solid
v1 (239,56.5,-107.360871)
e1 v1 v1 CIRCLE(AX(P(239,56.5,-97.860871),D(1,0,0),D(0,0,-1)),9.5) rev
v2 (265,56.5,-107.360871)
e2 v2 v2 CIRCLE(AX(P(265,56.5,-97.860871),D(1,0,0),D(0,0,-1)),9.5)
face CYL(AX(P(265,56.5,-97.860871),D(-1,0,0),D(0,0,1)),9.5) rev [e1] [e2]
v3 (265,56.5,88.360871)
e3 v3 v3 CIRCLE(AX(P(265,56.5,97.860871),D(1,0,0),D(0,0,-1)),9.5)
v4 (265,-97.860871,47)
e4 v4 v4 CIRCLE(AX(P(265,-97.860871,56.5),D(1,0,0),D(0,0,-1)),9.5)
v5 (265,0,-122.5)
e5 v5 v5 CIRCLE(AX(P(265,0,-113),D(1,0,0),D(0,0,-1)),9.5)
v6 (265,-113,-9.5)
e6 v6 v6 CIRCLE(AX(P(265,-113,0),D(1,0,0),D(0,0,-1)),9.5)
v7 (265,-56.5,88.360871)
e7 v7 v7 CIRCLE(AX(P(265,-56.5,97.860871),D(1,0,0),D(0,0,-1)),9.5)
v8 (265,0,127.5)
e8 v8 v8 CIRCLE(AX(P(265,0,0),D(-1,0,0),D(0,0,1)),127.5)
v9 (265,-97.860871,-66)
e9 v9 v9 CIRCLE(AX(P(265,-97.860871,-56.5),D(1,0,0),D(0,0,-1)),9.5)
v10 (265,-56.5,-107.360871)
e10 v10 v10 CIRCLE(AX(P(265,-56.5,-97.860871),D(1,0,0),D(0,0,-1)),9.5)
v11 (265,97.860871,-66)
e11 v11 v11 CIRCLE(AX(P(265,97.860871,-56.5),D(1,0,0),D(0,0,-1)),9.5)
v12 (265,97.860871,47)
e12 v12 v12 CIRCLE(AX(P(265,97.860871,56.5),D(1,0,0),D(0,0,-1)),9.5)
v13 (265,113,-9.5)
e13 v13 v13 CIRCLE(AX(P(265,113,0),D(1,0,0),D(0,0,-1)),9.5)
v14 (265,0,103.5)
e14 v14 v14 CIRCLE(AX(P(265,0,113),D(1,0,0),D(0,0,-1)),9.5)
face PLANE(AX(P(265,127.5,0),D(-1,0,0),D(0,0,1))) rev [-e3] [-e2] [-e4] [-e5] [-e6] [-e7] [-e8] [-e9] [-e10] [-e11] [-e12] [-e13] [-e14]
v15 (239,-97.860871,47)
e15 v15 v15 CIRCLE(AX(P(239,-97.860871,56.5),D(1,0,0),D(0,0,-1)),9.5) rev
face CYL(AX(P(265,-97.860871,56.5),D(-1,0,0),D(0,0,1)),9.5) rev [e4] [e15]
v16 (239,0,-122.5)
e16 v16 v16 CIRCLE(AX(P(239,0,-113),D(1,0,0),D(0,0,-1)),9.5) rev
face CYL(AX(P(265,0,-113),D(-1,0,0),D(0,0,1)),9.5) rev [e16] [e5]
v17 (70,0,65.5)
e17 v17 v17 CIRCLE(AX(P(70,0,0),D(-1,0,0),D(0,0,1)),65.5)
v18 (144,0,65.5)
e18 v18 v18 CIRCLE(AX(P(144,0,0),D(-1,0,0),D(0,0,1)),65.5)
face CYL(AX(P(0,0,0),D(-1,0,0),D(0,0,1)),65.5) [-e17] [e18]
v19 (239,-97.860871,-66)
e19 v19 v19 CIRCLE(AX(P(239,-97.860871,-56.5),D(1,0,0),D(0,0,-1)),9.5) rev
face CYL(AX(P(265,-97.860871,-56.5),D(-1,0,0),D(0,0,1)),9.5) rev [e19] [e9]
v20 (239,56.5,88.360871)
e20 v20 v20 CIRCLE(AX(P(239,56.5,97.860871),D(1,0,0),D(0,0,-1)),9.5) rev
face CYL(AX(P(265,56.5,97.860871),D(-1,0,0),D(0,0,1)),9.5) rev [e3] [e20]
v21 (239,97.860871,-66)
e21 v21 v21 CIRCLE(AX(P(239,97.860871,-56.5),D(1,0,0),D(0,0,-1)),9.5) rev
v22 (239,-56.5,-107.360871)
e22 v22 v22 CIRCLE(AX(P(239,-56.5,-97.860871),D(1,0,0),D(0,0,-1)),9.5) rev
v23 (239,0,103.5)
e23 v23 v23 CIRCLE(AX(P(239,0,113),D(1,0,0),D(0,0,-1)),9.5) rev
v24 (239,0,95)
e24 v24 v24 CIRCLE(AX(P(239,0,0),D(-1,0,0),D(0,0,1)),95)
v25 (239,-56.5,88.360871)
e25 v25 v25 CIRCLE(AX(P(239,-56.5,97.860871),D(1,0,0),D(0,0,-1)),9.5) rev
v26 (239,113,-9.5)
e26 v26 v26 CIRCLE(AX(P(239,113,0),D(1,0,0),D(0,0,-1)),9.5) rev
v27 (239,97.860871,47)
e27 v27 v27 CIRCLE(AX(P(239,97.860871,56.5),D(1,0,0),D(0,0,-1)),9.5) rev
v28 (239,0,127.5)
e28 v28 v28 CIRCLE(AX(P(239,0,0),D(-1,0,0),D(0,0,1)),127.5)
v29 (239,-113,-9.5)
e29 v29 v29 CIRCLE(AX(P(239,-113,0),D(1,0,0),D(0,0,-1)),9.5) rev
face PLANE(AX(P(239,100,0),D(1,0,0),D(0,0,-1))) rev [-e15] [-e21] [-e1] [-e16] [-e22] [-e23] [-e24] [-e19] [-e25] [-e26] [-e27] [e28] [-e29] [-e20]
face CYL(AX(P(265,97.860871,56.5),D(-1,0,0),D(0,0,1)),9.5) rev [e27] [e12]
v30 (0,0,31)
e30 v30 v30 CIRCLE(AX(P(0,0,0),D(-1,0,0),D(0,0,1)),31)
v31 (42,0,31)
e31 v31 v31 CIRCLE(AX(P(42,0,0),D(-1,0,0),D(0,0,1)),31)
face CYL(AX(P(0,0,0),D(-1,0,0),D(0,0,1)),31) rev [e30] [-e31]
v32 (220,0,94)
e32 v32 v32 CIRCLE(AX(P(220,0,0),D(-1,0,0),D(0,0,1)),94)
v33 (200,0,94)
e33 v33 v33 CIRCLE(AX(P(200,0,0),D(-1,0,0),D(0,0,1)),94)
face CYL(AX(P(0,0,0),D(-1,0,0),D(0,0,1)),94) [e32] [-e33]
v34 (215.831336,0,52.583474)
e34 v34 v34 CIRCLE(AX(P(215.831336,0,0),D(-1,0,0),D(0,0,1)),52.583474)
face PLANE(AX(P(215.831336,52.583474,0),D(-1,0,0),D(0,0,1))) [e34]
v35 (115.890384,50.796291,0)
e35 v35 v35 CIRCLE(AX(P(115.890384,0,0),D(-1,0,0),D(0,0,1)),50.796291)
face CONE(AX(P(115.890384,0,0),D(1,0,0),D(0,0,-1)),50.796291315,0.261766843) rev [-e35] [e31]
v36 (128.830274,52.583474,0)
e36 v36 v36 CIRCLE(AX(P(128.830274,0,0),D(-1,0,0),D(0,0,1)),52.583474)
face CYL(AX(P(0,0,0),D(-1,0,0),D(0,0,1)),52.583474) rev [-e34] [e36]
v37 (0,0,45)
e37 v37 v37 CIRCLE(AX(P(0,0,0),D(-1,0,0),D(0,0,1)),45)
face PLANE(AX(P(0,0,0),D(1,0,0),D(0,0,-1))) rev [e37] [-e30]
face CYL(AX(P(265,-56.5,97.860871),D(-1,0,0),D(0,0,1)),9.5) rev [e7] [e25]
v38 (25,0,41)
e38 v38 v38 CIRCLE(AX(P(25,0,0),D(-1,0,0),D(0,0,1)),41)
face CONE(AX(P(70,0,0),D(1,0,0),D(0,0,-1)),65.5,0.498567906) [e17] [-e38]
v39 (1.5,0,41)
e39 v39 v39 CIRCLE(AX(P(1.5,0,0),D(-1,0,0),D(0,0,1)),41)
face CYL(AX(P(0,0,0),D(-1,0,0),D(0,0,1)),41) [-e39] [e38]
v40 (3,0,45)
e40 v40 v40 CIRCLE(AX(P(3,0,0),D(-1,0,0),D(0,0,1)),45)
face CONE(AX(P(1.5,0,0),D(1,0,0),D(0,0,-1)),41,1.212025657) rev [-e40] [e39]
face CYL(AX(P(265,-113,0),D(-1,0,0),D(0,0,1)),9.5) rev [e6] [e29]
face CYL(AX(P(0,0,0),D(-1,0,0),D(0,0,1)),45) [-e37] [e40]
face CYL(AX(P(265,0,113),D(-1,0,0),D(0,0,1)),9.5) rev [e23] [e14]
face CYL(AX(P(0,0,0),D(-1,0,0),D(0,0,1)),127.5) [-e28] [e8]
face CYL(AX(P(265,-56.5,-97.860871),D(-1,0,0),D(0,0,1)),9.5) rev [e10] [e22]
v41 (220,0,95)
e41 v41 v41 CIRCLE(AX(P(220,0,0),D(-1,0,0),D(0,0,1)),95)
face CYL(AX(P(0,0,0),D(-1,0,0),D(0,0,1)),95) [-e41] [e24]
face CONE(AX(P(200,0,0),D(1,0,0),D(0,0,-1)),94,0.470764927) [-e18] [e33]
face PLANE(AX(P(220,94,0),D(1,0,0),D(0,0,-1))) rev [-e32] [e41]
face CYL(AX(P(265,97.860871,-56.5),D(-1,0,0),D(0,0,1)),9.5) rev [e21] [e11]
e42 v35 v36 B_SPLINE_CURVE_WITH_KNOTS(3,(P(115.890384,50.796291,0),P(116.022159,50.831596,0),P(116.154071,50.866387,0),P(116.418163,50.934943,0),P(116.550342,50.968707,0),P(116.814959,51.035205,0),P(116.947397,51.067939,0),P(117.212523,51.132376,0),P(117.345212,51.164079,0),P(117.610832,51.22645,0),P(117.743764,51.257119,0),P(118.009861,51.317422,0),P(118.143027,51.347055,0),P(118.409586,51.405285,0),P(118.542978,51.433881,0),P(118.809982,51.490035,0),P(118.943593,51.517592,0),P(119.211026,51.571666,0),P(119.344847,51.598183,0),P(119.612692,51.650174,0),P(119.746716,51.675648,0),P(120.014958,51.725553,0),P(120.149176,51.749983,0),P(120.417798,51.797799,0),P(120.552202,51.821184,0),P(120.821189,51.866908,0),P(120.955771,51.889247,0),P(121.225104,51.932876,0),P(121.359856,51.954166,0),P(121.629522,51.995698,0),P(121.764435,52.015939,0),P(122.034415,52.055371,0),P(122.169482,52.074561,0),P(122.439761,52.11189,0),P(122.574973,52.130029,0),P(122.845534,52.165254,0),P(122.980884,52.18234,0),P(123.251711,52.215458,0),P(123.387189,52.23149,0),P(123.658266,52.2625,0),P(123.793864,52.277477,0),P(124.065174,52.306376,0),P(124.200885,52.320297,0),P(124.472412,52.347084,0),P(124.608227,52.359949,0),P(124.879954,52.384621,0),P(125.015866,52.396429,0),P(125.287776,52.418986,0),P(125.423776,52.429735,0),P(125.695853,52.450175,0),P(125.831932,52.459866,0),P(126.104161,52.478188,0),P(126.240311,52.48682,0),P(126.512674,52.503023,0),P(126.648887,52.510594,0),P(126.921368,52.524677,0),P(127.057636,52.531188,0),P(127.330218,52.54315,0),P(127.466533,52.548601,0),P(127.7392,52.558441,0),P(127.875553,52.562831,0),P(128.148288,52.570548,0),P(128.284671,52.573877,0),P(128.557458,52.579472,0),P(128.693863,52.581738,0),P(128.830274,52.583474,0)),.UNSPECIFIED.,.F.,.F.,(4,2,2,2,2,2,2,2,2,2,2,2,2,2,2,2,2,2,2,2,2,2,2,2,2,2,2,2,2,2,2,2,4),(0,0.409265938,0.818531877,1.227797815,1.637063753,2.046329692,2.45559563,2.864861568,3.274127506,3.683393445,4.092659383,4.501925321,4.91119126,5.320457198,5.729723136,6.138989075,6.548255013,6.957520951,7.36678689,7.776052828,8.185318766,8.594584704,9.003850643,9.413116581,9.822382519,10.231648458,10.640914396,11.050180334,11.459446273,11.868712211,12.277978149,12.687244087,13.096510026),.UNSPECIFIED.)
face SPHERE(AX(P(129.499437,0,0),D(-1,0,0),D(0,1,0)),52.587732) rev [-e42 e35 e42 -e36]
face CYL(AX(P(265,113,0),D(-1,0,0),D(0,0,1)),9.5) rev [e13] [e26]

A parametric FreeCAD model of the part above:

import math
import FreeCAD as App
import Part
import Sketcher

V = App.Vector
Q = App.Units.Quantity

doc = App.newDocument("Part")
params = doc.addObject("Spreadsheet::Sheet", "Params")
for row, (alias, value) in enumerate([
    ("sketch1_width", "265 mm"),
    ("sketch1_width2", "26 mm"),
    ("sketch1_width3", "19 mm"),
    ("sketch1_width4", "20 mm"),
    ("sketch1_width5", "74 mm"),
    ("revolution_angle", "360 deg"),
    ("sketch2_width", "42 mm"),
    ("sketch2_height", "31 mm"),
    ("groove_angle", "360 deg"),
    ("sketch3_diameter", "19 mm"),
    ("sketch4_diameter", "19 mm"),
    ("sketch5_diameter", "19 mm"),
    ("sketch6_diameter", "19 mm"),
    ("sketch7_diameter", "19 mm"),
    ("sketch8_diameter", "19 mm"),
    ("sketch9_diameter", "19 mm"),
    ("sketch10_diameter", "19 mm"),
    ("sketch11_diameter", "19 mm"),
    ("sketch12_diameter", "19 mm"),
    ("sketch13_diameter", "19 mm"),
    ("sketch14_diameter", "19 mm"),
], start=1):
    params.set(f"A{row}", alias)
    params.set(f"B{row}", "=" + value)
    params.setAlias(f"B{row}", alias)

body = doc.addObject("PartDesign::Body", "Body")

# Sketch on XY plane
sketch1 = body.newObject("Sketcher::SketchObject", "Sketch")
sketch1.AttachmentSupport = (doc.getObject("XY_Plane"), [""])
sketch1.MapMode = "FlatFace"
sketch1.addGeometry([
    Part.LineSegment(V(0, 0, 0), V(265, 0, 0)),  # 0
    Part.LineSegment(V(265, 0, 0), V(265, 127.5, 0)),  # 1
    Part.LineSegment(V(265, 127.5, 0), V(239, 127.5, 0)),  # 2
    Part.LineSegment(V(239, 127.5, 0), V(239, 95, 0)),  # 3
    Part.LineSegment(V(239, 95, 0), V(220, 95, 0)),  # 4
    Part.LineSegment(V(220, 95, 0), V(220, 94, 0)),  # 5
    Part.LineSegment(V(220, 94, 0), V(200, 94, 0)),  # 6
    Part.LineSegment(V(200, 94, 0), V(144, 65.5, 0)),  # 7
    Part.LineSegment(V(144, 65.5, 0), V(70, 65.5, 0)),  # 8
    Part.LineSegment(V(70, 65.5, 0), V(25, 41, 0)),  # 9
    Part.LineSegment(V(25, 41, 0), V(1.5, 41, 0)),  # 10
    Part.LineSegment(V(1.5, 41, 0), V(3, 45, 0)),  # 11
    Part.LineSegment(V(3, 45, 0), V(0, 45, 0)),  # 12
    Part.LineSegment(V(0, 45, 0), V(0, 0, 0)),  # 13
], False)
sketch1.addConstraint([
    Sketcher.Constraint("Coincident", 0, 2, 1, 1),
    Sketcher.Constraint("Coincident", 1, 2, 2, 1),
    Sketcher.Constraint("Coincident", 2, 2, 3, 1),
    Sketcher.Constraint("Coincident", 3, 2, 4, 1),
    Sketcher.Constraint("Coincident", 4, 2, 5, 1),
    Sketcher.Constraint("Coincident", 5, 2, 6, 1),
    Sketcher.Constraint("Coincident", 6, 2, 7, 1),
    Sketcher.Constraint("Coincident", 7, 2, 8, 1),
    Sketcher.Constraint("Coincident", 8, 2, 9, 1),
    Sketcher.Constraint("Coincident", 9, 2, 10, 1),
    Sketcher.Constraint("Coincident", 10, 2, 11, 1),
    Sketcher.Constraint("Coincident", 11, 2, 12, 1),
    Sketcher.Constraint("Coincident", 12, 2, 13, 1),
    Sketcher.Constraint("Coincident", 13, 2, 0, 1),
    Sketcher.Constraint("Horizontal", 0),
    Sketcher.Constraint("Vertical", 1),
    Sketcher.Constraint("Horizontal", 2),
    Sketcher.Constraint("Vertical", 3),
    Sketcher.Constraint("Horizontal", 4),
    Sketcher.Constraint("Vertical", 5),
    Sketcher.Constraint("Horizontal", 6),
    Sketcher.Constraint("Horizontal", 8),
    Sketcher.Constraint("Horizontal", 10),
    Sketcher.Constraint("Horizontal", 12),
    Sketcher.Constraint("Vertical", 13),
    Sketcher.Constraint("Coincident", 13, 2, -1, 1),
    Sketcher.Constraint("DistanceX", 0, 1, 0, 2, Q("265 mm")),
    Sketcher.Constraint("DistanceX", 2, 2, 2, 1, Q("26 mm")),
    Sketcher.Constraint("DistanceX", 4, 2, 4, 1, Q("19 mm")),
    Sketcher.Constraint("DistanceX", 6, 2, 6, 1, Q("20 mm")),
    Sketcher.Constraint("DistanceX", 8, 2, 8, 1, Q("74 mm")),
    Sketcher.Constraint("DistanceX", 12, 2, 12, 1, Q("3 mm")),
    Sketcher.Constraint("DistanceY", 5, 2, 5, 1, Q("1 mm")),
    Sketcher.Constraint("DistanceY", 13, 2, 13, 1, Q("45 mm")),
    Sketcher.Constraint("DistanceX", 10, 2, 10, 1, Q("23.5 mm")),
    Sketcher.Constraint("DistanceY", 1, 1, 1, 2, Q("127.5 mm")),
    Sketcher.Constraint("DistanceY", 3, 2, 3, 1, Q("32.5 mm")),
    Sketcher.Constraint("DistanceX", -1, 1, 7, 2, Q("144 mm")),
    Sketcher.Constraint("DistanceX", -1, 1, 9, 2, Q("25 mm")),
    Sketcher.Constraint("DistanceY", -1, 1, 9, 2, Q("41 mm")),
    Sketcher.Constraint("DistanceY", 7, 2, 2, 2, Q("62 mm")),
])
sketch1.setExpression("Constraints[26]", "Params.sketch1_width")
sketch1.setExpression("Constraints[27]", "Params.sketch1_width2")
sketch1.setExpression("Constraints[28]", "Params.sketch1_width3")
sketch1.setExpression("Constraints[29]", "Params.sketch1_width4")
sketch1.setExpression("Constraints[30]", "Params.sketch1_width5")
revolution = body.newObject("PartDesign::Revolution", "Revolution")
revolution.Profile = sketch1
revolution.ReferenceAxis = (sketch1, ["H_Axis"])
revolution.setExpression("Angle", "Params.revolution_angle")

# Sketch on XY plane
sketch2 = body.newObject("Sketcher::SketchObject", "Sketch001")
sketch2.AttachmentSupport = (doc.getObject("XY_Plane"), [""])
sketch2.MapMode = "FlatFace"
sketch2.addGeometry([
    Part.LineSegment(V(0, 0, 0), V(216, 0, 0)),  # 0
    Part.LineSegment(V(216, 0, 0), V(216, 53, 0)),  # 1
    Part.LineSegment(V(216, 53, 0), V(129, 53, 0)),  # 2
    Part.ArcOfCircle(Part.Circle(V(129, 0, 0), V(0, 0, 1), 53), math.radians(90.73), math.radians(105)),  # 3
    Part.LineSegment(V(116, 51, 0), V(42, 31, 0)),  # 4
    Part.LineSegment(V(42, 31, 0), V(0, 31, 0)),  # 5
    Part.LineSegment(V(0, 31, 0), V(0, 0, 0)),  # 6
], False)
sketch2.addConstraint([
    Sketcher.Constraint("Coincident", 0, 2, 1, 1),
    Sketcher.Constraint("Coincident", 1, 2, 2, 1),
    Sketcher.Constraint("Coincident", 2, 2, 3, 1),
    Sketcher.Constraint("Tangent", 3, 2, 4, 1),
    Sketcher.Constraint("Coincident", 4, 2, 5, 1),
    Sketcher.Constraint("Coincident", 5, 2, 6, 1),
    Sketcher.Constraint("Coincident", 6, 2, 0, 1),
    Sketcher.Constraint("Horizontal", 0),
    Sketcher.Constraint("Vertical", 1),
    Sketcher.Constraint("Horizontal", 2),
    Sketcher.Constraint("Horizontal", 5),
    Sketcher.Constraint("Vertical", 6),
    Sketcher.Constraint("Coincident", 6, 2, -1, 1),
    Sketcher.Constraint("PointOnObject", 3, 3, -1),
    Sketcher.Constraint("DistanceX", 5, 2, 5, 1, Q("42 mm")),
    Sketcher.Constraint("DistanceY", 6, 2, 6, 1, Q("31 mm")),
    Sketcher.Constraint("Radius", 3, Q("52.587732 mm")),
    Sketcher.Constraint("DistanceX", 3, 3, 0, 2, Q("86.331899 mm")),
    Sketcher.Constraint("DistanceX", 0, 1, 0, 2, Q("215.831336 mm")),
    Sketcher.Constraint("DistanceX", 2, 2, 2, 1, Q("87.001062 mm")),
])
sketch2.setExpression("Constraints[14]", "Params.sketch2_width")
sketch2.setExpression("Constraints[15]", "Params.sketch2_height")
groove = body.newObject("PartDesign::Groove", "Groove")
groove.Profile = sketch2
groove.ReferenceAxis = (sketch2, ["H_Axis"])
groove.setExpression("Angle", "Params.groove_angle")

# Sketch on YZ plane
sketch3 = body.newObject("Sketcher::SketchObject", "Sketch002")
sketch3.AttachmentSupport = (doc.getObject("YZ_Plane"), [""])
sketch3.MapMode = "FlatFace"
sketch3.addGeometry(Part.Circle(V(113, 0, 0), V(0, 0, 1), 10), False)
sketch3.addConstraint([
    Sketcher.Constraint("PointOnObject", 0, 3, -1),
    Sketcher.Constraint("Diameter", 0, Q("19 mm")),
    Sketcher.Constraint("DistanceX", -1, 1, 0, 3, Q("113 mm")),
])
sketch3.setExpression("Constraints[1]", "Params.sketch3_diameter")
pocket1 = body.newObject("PartDesign::Pocket", "Pocket")
pocket1.Profile = sketch3
pocket1.Type = "ThroughAll"
pocket1.Reversed = True

# Sketch on YZ plane
sketch4 = body.newObject("Sketcher::SketchObject", "Sketch003")
sketch4.AttachmentSupport = (doc.getObject("YZ_Plane"), [""])
sketch4.MapMode = "FlatFace"
sketch4.addGeometry(Part.Circle(V(98, 56, 0), V(0, 0, 1), 10), False)
sketch4.addConstraint([
    Sketcher.Constraint("Diameter", 0, Q("19 mm")),
    Sketcher.Constraint("DistanceY", -1, 1, 0, 3, Q("56.5 mm")),
    Sketcher.Constraint("DistanceX", -1, 1, 0, 3, Q("97.860871 mm")),
])
sketch4.setExpression("Constraints[0]", "Params.sketch4_diameter")
pocket2 = body.newObject("PartDesign::Pocket", "Pocket001")
pocket2.Profile = sketch4
pocket2.Type = "ThroughAll"
pocket2.Reversed = True

# Sketch on YZ plane
sketch5 = body.newObject("Sketcher::SketchObject", "Sketch004")
sketch5.AttachmentSupport = (doc.getObject("YZ_Plane"), [""])
sketch5.MapMode = "FlatFace"
sketch5.addGeometry(Part.Circle(V(56, 98, 0), V(0, 0, 1), 10), False)
sketch5.addConstraint([
    Sketcher.Constraint("Diameter", 0, Q("19 mm")),
    Sketcher.Constraint("DistanceX", -1, 1, 0, 3, Q("56.5 mm")),
    Sketcher.Constraint("DistanceY", -1, 1, 0, 3, Q("97.860871 mm")),
])
sketch5.setExpression("Constraints[0]", "Params.sketch5_diameter")
pocket3 = body.newObject("PartDesign::Pocket", "Pocket002")
pocket3.Profile = sketch5
pocket3.Type = "ThroughAll"
pocket3.Reversed = True

# Sketch on YZ plane
sketch6 = body.newObject("Sketcher::SketchObject", "Sketch005")
sketch6.AttachmentSupport = (doc.getObject("YZ_Plane"), [""])
sketch6.MapMode = "FlatFace"
sketch6.addGeometry(Part.Circle(V(0, 113, 0), V(0, 0, 1), 10), False)
sketch6.addConstraint([
    Sketcher.Constraint("PointOnObject", 0, 3, -2),
    Sketcher.Constraint("Diameter", 0, Q("19 mm")),
    Sketcher.Constraint("DistanceY", -1, 1, 0, 3, Q("113 mm")),
])
sketch6.setExpression("Constraints[1]", "Params.sketch6_diameter")
pocket4 = body.newObject("PartDesign::Pocket", "Pocket003")
pocket4.Profile = sketch6
pocket4.Type = "ThroughAll"
pocket4.Reversed = True

# Sketch on YZ plane
sketch7 = body.newObject("Sketcher::SketchObject", "Sketch006")
sketch7.AttachmentSupport = (doc.getObject("YZ_Plane"), [""])
sketch7.MapMode = "FlatFace"
sketch7.addGeometry(Part.Circle(V(-56, 98, 0), V(0, 0, 1), 10), False)
sketch7.addConstraint([
    Sketcher.Constraint("Diameter", 0, Q("19 mm")),
    Sketcher.Constraint("DistanceX", 0, 3, -1, 1, Q("56.5 mm")),
    Sketcher.Constraint("DistanceY", -1, 1, 0, 3, Q("97.860871 mm")),
])
sketch7.setExpression("Constraints[0]", "Params.sketch7_diameter")
pocket5 = body.newObject("PartDesign::Pocket", "Pocket004")
pocket5.Profile = sketch7
pocket5.Type = "ThroughAll"
pocket5.Reversed = True

# Sketch on YZ plane
sketch8 = body.newObject("Sketcher::SketchObject", "Sketch007")
sketch8.AttachmentSupport = (doc.getObject("YZ_Plane"), [""])
sketch8.MapMode = "FlatFace"
sketch8.addGeometry(Part.Circle(V(-98, 56, 0), V(0, 0, 1), 10), False)
sketch8.addConstraint([
    Sketcher.Constraint("Diameter", 0, Q("19 mm")),
    Sketcher.Constraint("DistanceY", -1, 1, 0, 3, Q("56.5 mm")),
    Sketcher.Constraint("DistanceX", 0, 3, -1, 1, Q("97.860871 mm")),
])
sketch8.setExpression("Constraints[0]", "Params.sketch8_diameter")
pocket6 = body.newObject("PartDesign::Pocket", "Pocket005")
pocket6.Profile = sketch8
pocket6.Type = "ThroughAll"
pocket6.Reversed = True

# Sketch on YZ plane
sketch9 = body.newObject("Sketcher::SketchObject", "Sketch008")
sketch9.AttachmentSupport = (doc.getObject("YZ_Plane"), [""])
sketch9.MapMode = "FlatFace"
sketch9.addGeometry(Part.Circle(V(-113, 0, 0), V(0, 0, 1), 10), False)
sketch9.addConstraint([
    Sketcher.Constraint("PointOnObject", 0, 3, -1),
    Sketcher.Constraint("Diameter", 0, Q("19 mm")),
    Sketcher.Constraint("DistanceX", 0, 3, -1, 1, Q("113 mm")),
])
sketch9.setExpression("Constraints[1]", "Params.sketch9_diameter")
pocket7 = body.newObject("PartDesign::Pocket", "Pocket006")
pocket7.Profile = sketch9
pocket7.Type = "ThroughAll"
pocket7.Reversed = True

# Sketch on YZ plane
sketch10 = body.newObject("Sketcher::SketchObject", "Sketch009")
sketch10.AttachmentSupport = (doc.getObject("YZ_Plane"), [""])
sketch10.MapMode = "FlatFace"
sketch10.addGeometry(Part.Circle(V(-98, -56, 0), V(0, 0, 1), 10), False)
sketch10.addConstraint([
    Sketcher.Constraint("Diameter", 0, Q("19 mm")),
    Sketcher.Constraint("DistanceY", 0, 3, -1, 1, Q("56.5 mm")),
    Sketcher.Constraint("DistanceX", 0, 3, -1, 1, Q("97.860871 mm")),
])
sketch10.setExpression("Constraints[0]", "Params.sketch10_diameter")
pocket8 = body.newObject("PartDesign::Pocket", "Pocket007")
pocket8.Profile = sketch10
pocket8.Type = "ThroughAll"
pocket8.Reversed = True

# Sketch on YZ plane
sketch11 = body.newObject("Sketcher::SketchObject", "Sketch010")
sketch11.AttachmentSupport = (doc.getObject("YZ_Plane"), [""])
sketch11.MapMode = "FlatFace"
sketch11.addGeometry(Part.Circle(V(-56, -98, 0), V(0, 0, 1), 10), False)
sketch11.addConstraint([
    Sketcher.Constraint("Diameter", 0, Q("19 mm")),
    Sketcher.Constraint("DistanceX", 0, 3, -1, 1, Q("56.5 mm")),
    Sketcher.Constraint("DistanceY", 0, 3, -1, 1, Q("97.860871 mm")),
])
sketch11.setExpression("Constraints[0]", "Params.sketch11_diameter")
pocket9 = body.newObject("PartDesign::Pocket", "Pocket008")
pocket9.Profile = sketch11
pocket9.Type = "ThroughAll"
pocket9.Reversed = True

# Sketch on YZ plane
sketch12 = body.newObject("Sketcher::SketchObject", "Sketch011")
sketch12.AttachmentSupport = (doc.getObject("YZ_Plane"), [""])
sketch12.MapMode = "FlatFace"
sketch12.addGeometry(Part.Circle(V(0, -113, 0), V(0, 0, 1), 10), False)
sketch12.addConstraint([
    Sketcher.Constraint("PointOnObject", 0, 3, -2),
    Sketcher.Constraint("Diameter", 0, Q("19 mm")),
    Sketcher.Constraint("DistanceY", 0, 3, -1, 1, Q("113 mm")),
])
sketch12.setExpression("Constraints[1]", "Params.sketch12_diameter")
pocket10 = body.newObject("PartDesign::Pocket", "Pocket009")
pocket10.Profile = sketch12
pocket10.Type = "ThroughAll"
pocket10.Reversed = True

# Sketch on YZ plane
sketch13 = body.newObject("Sketcher::SketchObject", "Sketch012")
sketch13.AttachmentSupport = (doc.getObject("YZ_Plane"), [""])
sketch13.MapMode = "FlatFace"
sketch13.addGeometry(Part.Circle(V(56, -98, 0), V(0, 0, 1), 10), False)
sketch13.addConstraint([
    Sketcher.Constraint("Diameter", 0, Q("19 mm")),
    Sketcher.Constraint("DistanceX", -1, 1, 0, 3, Q("56.5 mm")),
    Sketcher.Constraint("DistanceY", 0, 3, -1, 1, Q("97.860871 mm")),
])
sketch13.setExpression("Constraints[0]", "Params.sketch13_diameter")
pocket11 = body.newObject("PartDesign::Pocket", "Pocket010")
pocket11.Profile = sketch13
pocket11.Type = "ThroughAll"
pocket11.Reversed = True

# Sketch on YZ plane
sketch14 = body.newObject("Sketcher::SketchObject", "Sketch013")
sketch14.AttachmentSupport = (doc.getObject("YZ_Plane"), [""])
sketch14.MapMode = "FlatFace"
sketch14.addGeometry(Part.Circle(V(98, -56, 0), V(0, 0, 1), 10), False)
sketch14.addConstraint([
    Sketcher.Constraint("Diameter", 0, Q("19 mm")),
    Sketcher.Constraint("DistanceY", 0, 3, -1, 1, Q("56.5 mm")),
    Sketcher.Constraint("DistanceX", -1, 1, 0, 3, Q("97.860871 mm")),
])
sketch14.setExpression("Constraints[0]", "Params.sketch14_diameter")
pocket12 = body.newObject("PartDesign::Pocket", "Pocket011")
pocket12.Profile = sketch14
pocket12.Type = "ThroughAll"
pocket12.Reversed = True

doc.recompute()
